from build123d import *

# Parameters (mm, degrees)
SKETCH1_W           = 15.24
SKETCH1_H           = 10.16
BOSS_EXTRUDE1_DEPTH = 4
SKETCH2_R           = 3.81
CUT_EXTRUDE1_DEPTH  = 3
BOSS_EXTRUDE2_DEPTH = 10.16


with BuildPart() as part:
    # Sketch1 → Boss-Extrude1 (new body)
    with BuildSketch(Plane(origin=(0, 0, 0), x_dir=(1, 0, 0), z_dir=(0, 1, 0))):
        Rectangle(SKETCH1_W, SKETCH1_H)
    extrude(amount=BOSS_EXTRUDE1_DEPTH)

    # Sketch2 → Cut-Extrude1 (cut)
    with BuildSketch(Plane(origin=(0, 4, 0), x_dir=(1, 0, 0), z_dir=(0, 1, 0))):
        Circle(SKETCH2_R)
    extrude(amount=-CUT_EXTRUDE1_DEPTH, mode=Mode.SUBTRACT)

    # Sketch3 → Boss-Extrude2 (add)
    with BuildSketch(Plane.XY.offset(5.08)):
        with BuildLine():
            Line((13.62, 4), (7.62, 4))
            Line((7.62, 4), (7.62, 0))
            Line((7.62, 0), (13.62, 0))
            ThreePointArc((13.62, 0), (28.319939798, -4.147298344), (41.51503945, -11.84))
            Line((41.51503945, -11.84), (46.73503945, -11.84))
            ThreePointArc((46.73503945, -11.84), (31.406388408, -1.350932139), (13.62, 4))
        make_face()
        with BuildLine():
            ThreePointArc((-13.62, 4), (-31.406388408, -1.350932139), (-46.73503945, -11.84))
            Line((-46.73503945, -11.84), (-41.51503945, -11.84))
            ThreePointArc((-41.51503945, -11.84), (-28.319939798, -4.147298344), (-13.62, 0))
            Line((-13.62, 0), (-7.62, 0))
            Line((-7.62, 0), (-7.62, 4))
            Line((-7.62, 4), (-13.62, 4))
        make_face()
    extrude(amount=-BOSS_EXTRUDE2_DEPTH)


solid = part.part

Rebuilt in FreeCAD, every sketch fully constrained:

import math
import FreeCAD as App
import Part
import Sketcher
from FreeCAD import Vector


def add_polygon(sketch, points):
    """Adds a closed chain of lines whose ends are joined by coincident constraints."""
    first, n = sketch.GeometryCount, len(points)
    for a, b in zip(points, points[1:] + points[:1]):
        sketch.addGeometry(Part.LineSegment(App.Vector(*a, 0), App.Vector(*b, 0)), False)
    for i in range(n):
        sketch.addConstraint(Sketcher.Constraint("Coincident", first + i, 2, first + (i + 1) % n, 1))

doc = App.newDocument("Part")
body = doc.addObject("PartDesign::Body", "Body")

sketch1 = doc.addObject("Sketcher::SketchObject", "Sketch")
body.addObject(sketch1)
sketch1.AttachmentSupport = (doc.XZ_Plane, [""])
sketch1.MapMode = "FlatFace"
add_polygon(sketch1, [(-8, -5), (-8, 5), (8, 5), (8, -5)])
sketch1.addConstraint(Sketcher.Constraint("Vertical", 0))
sketch1.addConstraint(Sketcher.Constraint("Horizontal", 1))
sketch1.addConstraint(Sketcher.Constraint("Vertical", 2))
sketch1.addConstraint(Sketcher.Constraint("Horizontal", 3))
sketch1.addConstraint(Sketcher.Constraint("Symmetric", 0, 2, 2, 2, -1, 1))
sketch1.addConstraint(Sketcher.Constraint("DistanceX", 1, 1, 1, 2, 15.24))
sketch1.addConstraint(Sketcher.Constraint("DistanceY", 0, 1, 0, 2, 10.16))
pad1 = doc.addObject("PartDesign::Pad", "Pad")
body.addObject(pad1)
pad1.Profile = sketch1
pad1.Length = 4
pad1.Reversed = True

sketch2 = doc.addObject("Sketcher::SketchObject", "Sketch001")
body.addObject(sketch2)
sketch2.AttachmentSupport = (doc.XZ_Plane, [""])
sketch2.MapMode = "FlatFace"
sketch2.AttachmentOffset = App.Placement(Vector(0, 0, -4), App.Rotation())
sketch2.addGeometry(Part.Circle(Vector(0, 0, 0), Vector(0, 0, 1), 3.8), False)
sketch2.addConstraint(Sketcher.Constraint("Coincident", 0, 3, -1, 1))
sketch2.addConstraint(Sketcher.Constraint("Diameter", 0, 7.62))
pocket1 = doc.addObject("PartDesign::Pocket", "Pocket")
body.addObject(pocket1)
pocket1.Profile = sketch2
pocket1.Length = 3
pocket1.Reversed = True

sketch3 = doc.addObject("Sketcher::SketchObject", "Sketch002")
body.addObject(sketch3)
sketch3.AttachmentSupport = (doc.XY_Plane, [""])
sketch3.MapMode = "FlatFace"
sketch3.AttachmentOffset = App.Placement(Vector(0, 0, 5.08), App.Rotation())
sketch3.addGeometry(Part.LineSegment(Vector(13.6, 4, 0), Vector(7.6, 4, 0)), False)
sketch3.addGeometry(Part.LineSegment(Vector(7.6, 4, 0), Vector(7.6, 0, 0)), False)
sketch3.addGeometry(Part.LineSegment(Vector(7.6, 0, 0), Vector(13.6, 0, 0)), False)
sketch3.addGeometry(Part.ArcOfCircle(Part.Circle(Vector(4.7, -59.9, 0), Vector(0, 0, 1), 60.6), math.radians(53), math.radians(81)), False)
sketch3.addGeometry(Part.LineSegment(Vector(41.5, -11.8, 0), Vector(46.7, -11.8, 0)), False)
sketch3.addGeometry(Part.ArcOfCircle(Part.Circle(Vector(5.3, -56, 0), Vector(0, 0, 1), 60.6), math.radians(47), math.radians(82)), False)
sketch3.addGeometry(Part.ArcOfCircle(Part.Circle(Vector(-5.3, -56, 0), Vector(0, 0, 1), 60.6), math.radians(98), math.radians(133)), False)
sketch3.addGeometry(Part.LineSegment(Vector(-46.7, -11.8, 0), Vector(-41.5, -11.8, 0)), False)
sketch3.addGeometry(Part.ArcOfCircle(Part.Circle(Vector(-4.7, -59.9, 0), Vector(0, 0, 1), 60.6), math.radians(99), math.radians(127)), False)
sketch3.addGeometry(Part.LineSegment(Vector(-13.6, 0, 0), Vector(-7.6, 0, 0)), False)
sketch3.addGeometry(Part.LineSegment(Vector(-7.6, 0, 0), Vector(-7.6, 4, 0)), False)
sketch3.addGeometry(Part.LineSegment(Vector(-7.6, 4, 0), Vector(-13.6, 4, 0)), False)
sketch3.addConstraint(Sketcher.Constraint("Coincident", 0, 2, 1, 1))
sketch3.addConstraint(Sketcher.Constraint("Coincident", 1, 2, 2, 1))
sketch3.addConstraint(Sketcher.Constraint("Coincident", 2, 2, 3, 2))
sketch3.addConstraint(Sketcher.Constraint("Coincident", 3, 1, 4, 1))
sketch3.addConstraint(Sketcher.Constraint("Coincident", 4, 2, 5, 1))
sketch3.addConstraint(Sketcher.Constraint("Coincident", 5, 2, 0, 1))
sketch3.addConstraint(Sketcher.Constraint("Coincident", 6, 2, 7, 1))
sketch3.addConstraint(Sketcher.Constraint("Coincident", 7, 2, 8, 2))
sketch3.addConstraint(Sketcher.Constraint("Coincident", 8, 1, 9, 1))
sketch3.addConstraint(Sketcher.Constraint("Coincident", 9, 2, 10, 1))
sketch3.addConstraint(Sketcher.Constraint("Coincident", 10, 2, 11, 1))
sketch3.addConstraint(Sketcher.Constraint("Coincident", 11, 2, 6, 1))
sketch3.addConstraint(Sketcher.Constraint("Horizontal", 0))
sketch3.addConstraint(Sketcher.Constraint("Vertical", 1))
sketch3.addConstraint(Sketcher.Constraint("Horizontal", 2))
sketch3.addConstraint(Sketcher.Constraint("Horizontal", 4))
sketch3.addConstraint(Sketcher.Constraint("Horizontal", 7))
sketch3.addConstraint(Sketcher.Constraint("Horizontal", 9))
sketch3.addConstraint(Sketcher.Constraint("Vertical", 10))
sketch3.addConstraint(Sketcher.Constraint("Horizontal", 11))
sketch3.addConstraint(Sketcher.Constraint("Equal", 3, 5))
sketch3.addConstraint(Sketcher.Constraint("Equal", 5, 6))
sketch3.addConstraint(Sketcher.Constraint("Equal", 6, 8))
sketch3.addConstraint(Sketcher.Constraint("Symmetric", 2, 2, 8, 1, -1, 1))
sketch3.addConstraint(Sketcher.Constraint("Symmetric", 5, 3, 6, 3, -2))
sketch3.addConstraint(Sketcher.Constraint("Symmetric", 3, 3, 8, 3, -2))
sketch3.addConstraint(Sketcher.Constraint("Symmetric", 0, 2, 10, 2, -2))
sketch3.addConstraint(Sketcher.Constraint("Horizontal", 4, 2, 6, 2))
sketch3.addConstraint(Sketcher.Constraint("Vertical", 2, 2, 5, 2))
sketch3.addConstraint(Sketcher.Constraint("DistanceX", 0, 2, 0, 1, 6.0))
sketch3.addConstraint(Sketcher.Constraint("DistanceY", 1, 2, 1, 1, 4.0))
sketch3.addConstraint(Sketcher.Constraint("Radius", 3, 60.57))
sketch3.addConstraint(Sketcher.Constraint("DistanceX", 4, 1, 4, 2, 5.22))
sketch3.addConstraint(Sketcher.Constraint("DistanceX", -1, 1, 0, 2, 7.62))
sketch3.addConstraint(Sketcher.Constraint("DistanceY", 3, 1, -1, 1, 11.84))
sketch3.addConstraint(Sketcher.Constraint("DistanceX", -1, 1, 3, 3, 4.654612))
pad2 = doc.addObject("PartDesign::Pad", "Pad001")
body.addObject(pad2)
pad2.Profile = sketch3
pad2.Length = 10.16
pad2.Reversed = True

doc.recompute()
